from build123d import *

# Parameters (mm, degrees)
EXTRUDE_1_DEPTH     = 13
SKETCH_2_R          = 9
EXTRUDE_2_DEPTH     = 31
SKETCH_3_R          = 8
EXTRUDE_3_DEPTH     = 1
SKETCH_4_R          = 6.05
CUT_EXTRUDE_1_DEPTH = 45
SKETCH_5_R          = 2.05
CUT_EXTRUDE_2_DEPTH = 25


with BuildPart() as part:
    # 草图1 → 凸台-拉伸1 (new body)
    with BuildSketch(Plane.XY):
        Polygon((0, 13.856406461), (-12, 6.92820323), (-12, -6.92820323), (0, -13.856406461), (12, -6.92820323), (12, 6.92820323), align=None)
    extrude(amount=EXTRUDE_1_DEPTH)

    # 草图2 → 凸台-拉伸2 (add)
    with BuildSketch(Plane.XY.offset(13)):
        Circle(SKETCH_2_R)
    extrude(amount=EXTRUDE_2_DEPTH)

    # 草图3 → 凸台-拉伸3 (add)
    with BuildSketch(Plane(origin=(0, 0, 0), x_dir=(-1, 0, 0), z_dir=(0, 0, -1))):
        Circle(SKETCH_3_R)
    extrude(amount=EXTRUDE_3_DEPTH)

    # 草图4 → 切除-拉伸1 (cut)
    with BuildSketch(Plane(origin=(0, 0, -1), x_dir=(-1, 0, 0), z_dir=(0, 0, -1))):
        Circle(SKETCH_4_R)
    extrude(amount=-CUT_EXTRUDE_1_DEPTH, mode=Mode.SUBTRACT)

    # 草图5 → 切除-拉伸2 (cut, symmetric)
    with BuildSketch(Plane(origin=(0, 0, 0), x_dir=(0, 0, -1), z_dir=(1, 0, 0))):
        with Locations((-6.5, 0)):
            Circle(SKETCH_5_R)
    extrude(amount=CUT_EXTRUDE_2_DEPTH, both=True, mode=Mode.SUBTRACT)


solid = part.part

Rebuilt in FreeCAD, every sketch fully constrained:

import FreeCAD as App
import Part
import Sketcher
Q = App.Units.Quantity

doc = App.newDocument("Part")
body = doc.addObject("PartDesign::Body", "Body")

# Sketch on XY plane
sketch1 = doc.addObject("Sketcher::SketchObject", "Sketch")
body.addObject(sketch1)
sketch1.AttachmentSupport = (doc.XY_Plane, [""])
sketch1.MapMode = "FlatFace"
sketch1.addGeometry([
    Part.LineSegment(App.Vector(0, 14, 0), App.Vector(-12, 7, 0)),  # 0
    Part.LineSegment(App.Vector(-12, 7, 0), App.Vector(-12, -7, 0)),  # 1
    Part.LineSegment(App.Vector(-12, -7, 0), App.Vector(0, -14, 0)),  # 2
    Part.LineSegment(App.Vector(0, -14, 0), App.Vector(12, -7, 0)),  # 3
    Part.LineSegment(App.Vector(12, -7, 0), App.Vector(12, 7, 0)),  # 4
    Part.LineSegment(App.Vector(12, 7, 0), App.Vector(0, 14, 0)),  # 5
], False)
sketch1.addConstraint([
    Sketcher.Constraint("Coincident", 0, 2, 1, 1),
    Sketcher.Constraint("Coincident", 1, 2, 2, 1),
    Sketcher.Constraint("Coincident", 2, 2, 3, 1),
    Sketcher.Constraint("Coincident", 3, 2, 4, 1),
    Sketcher.Constraint("Coincident", 4, 2, 5, 1),
    Sketcher.Constraint("Coincident", 5, 2, 0, 1),
    Sketcher.Constraint("Vertical", 1),
    Sketcher.Constraint("Vertical", 4),
    Sketcher.Constraint("Symmetric", 0, 2, 3, 2, -1, 1),
    Sketcher.Constraint("Symmetric", 2, 2, 5, 2, -1, 1),
    Sketcher.Constraint("PointOnObject", 2, 2, -2),
    Sketcher.Constraint("Parallel", 2, 5),
    Sketcher.Constraint("Horizontal", 1, 2, 3, 2),
    Sketcher.Constraint("Angle", 0, Q("-150 deg")),
    Sketcher.Constraint("DistanceX", 0, 2, -1, 1, Q("12 mm")),
    Sketcher.Constraint("DistanceY", 1, 2, 1, 1, Q("13.856406 mm")),
])
pad1 = doc.addObject("PartDesign::Pad", "Pad")
body.addObject(pad1)
pad1.Profile = sketch1
pad1.Length = 13

# Sketch on XY plane
sketch2 = doc.addObject("Sketcher::SketchObject", "Sketch001")
body.addObject(sketch2)
sketch2.AttachmentSupport = (doc.XY_Plane, [""])
sketch2.MapMode = "FlatFace"
sketch2.AttachmentOffset = App.Placement(App.Vector(0, 0, 13), App.Rotation())
sketch2.addGeometry(Part.Circle(App.Vector(0, 0, 0), App.Vector(0, 0, 1), 9), False)
sketch2.addConstraint([
    Sketcher.Constraint("Coincident", 0, 3, -1, 1),
    Sketcher.Constraint("Diameter", 0, Q("18 mm")),
])
pad2 = doc.addObject("PartDesign::Pad", "Pad001")
body.addObject(pad2)
pad2.Profile = sketch2
pad2.Length = 31

# Sketch on XY plane
sketch3 = doc.addObject("Sketcher::SketchObject", "Sketch002")
body.addObject(sketch3)
sketch3.AttachmentSupport = (doc.XY_Plane, [""])
sketch3.MapMode = "FlatFace"
sketch3.addGeometry(Part.Circle(App.Vector(0, 0, 0), App.Vector(0, 0, 1), 8), False)
sketch3.addConstraint([
    Sketcher.Constraint("Coincident", 0, 3, -1, 1),
    Sketcher.Constraint("Diameter", 0, Q("16 mm")),
])
pad3 = doc.addObject("PartDesign::Pad", "Pad002")
body.addObject(pad3)
pad3.Profile = sketch3
pad3.Length = 1
pad3.Reversed = True

# Sketch on XY plane
sketch4 = doc.addObject("Sketcher::SketchObject", "Sketch003")
body.addObject(sketch4)
sketch4.AttachmentSupport = (doc.XY_Plane, [""])
sketch4.MapMode = "FlatFace"
sketch4.AttachmentOffset = App.Placement(App.Vector(0, 0, -1), App.Rotation())
sketch4.addGeometry(Part.Circle(App.Vector(0, 0, 0), App.Vector(0, 0, 1), 6), False)
sketch4.addConstraint([
    Sketcher.Constraint("Coincident", 0, 3, -1, 1),
    Sketcher.Constraint("Diameter", 0, Q("12.1 mm")),
])
pocket1 = doc.addObject("PartDesign::Pocket", "Pocket")
body.addObject(pocket1)
pocket1.Profile = sketch4
pocket1.Length = 45
pocket1.Reversed = True

# Sketch on YZ plane
sketch5 = doc.addObject("Sketcher::SketchObject", "Sketch004")
body.addObject(sketch5)
sketch5.AttachmentSupport = (doc.YZ_Plane, [""])
sketch5.MapMode = "FlatFace"
sketch5.addGeometry(Part.Circle(App.Vector(0, 6.5, 0), App.Vector(0, 0, 1), 2), False)
sketch5.addConstraint([
    Sketcher.Constraint("PointOnObject", 0, 3, -2),
    Sketcher.Constraint("Diameter", 0, Q("4.1 mm")),
    Sketcher.Constraint("DistanceY", -1, 1, 0, 3, Q("6.5 mm")),
])
pocket2 = doc.addObject("PartDesign::Pocket", "Pocket001")
body.addObject(pocket2)
pocket2.Profile = sketch5
pocket2.Length = 50
pocket2.Midplane = True

doc.recompute()
